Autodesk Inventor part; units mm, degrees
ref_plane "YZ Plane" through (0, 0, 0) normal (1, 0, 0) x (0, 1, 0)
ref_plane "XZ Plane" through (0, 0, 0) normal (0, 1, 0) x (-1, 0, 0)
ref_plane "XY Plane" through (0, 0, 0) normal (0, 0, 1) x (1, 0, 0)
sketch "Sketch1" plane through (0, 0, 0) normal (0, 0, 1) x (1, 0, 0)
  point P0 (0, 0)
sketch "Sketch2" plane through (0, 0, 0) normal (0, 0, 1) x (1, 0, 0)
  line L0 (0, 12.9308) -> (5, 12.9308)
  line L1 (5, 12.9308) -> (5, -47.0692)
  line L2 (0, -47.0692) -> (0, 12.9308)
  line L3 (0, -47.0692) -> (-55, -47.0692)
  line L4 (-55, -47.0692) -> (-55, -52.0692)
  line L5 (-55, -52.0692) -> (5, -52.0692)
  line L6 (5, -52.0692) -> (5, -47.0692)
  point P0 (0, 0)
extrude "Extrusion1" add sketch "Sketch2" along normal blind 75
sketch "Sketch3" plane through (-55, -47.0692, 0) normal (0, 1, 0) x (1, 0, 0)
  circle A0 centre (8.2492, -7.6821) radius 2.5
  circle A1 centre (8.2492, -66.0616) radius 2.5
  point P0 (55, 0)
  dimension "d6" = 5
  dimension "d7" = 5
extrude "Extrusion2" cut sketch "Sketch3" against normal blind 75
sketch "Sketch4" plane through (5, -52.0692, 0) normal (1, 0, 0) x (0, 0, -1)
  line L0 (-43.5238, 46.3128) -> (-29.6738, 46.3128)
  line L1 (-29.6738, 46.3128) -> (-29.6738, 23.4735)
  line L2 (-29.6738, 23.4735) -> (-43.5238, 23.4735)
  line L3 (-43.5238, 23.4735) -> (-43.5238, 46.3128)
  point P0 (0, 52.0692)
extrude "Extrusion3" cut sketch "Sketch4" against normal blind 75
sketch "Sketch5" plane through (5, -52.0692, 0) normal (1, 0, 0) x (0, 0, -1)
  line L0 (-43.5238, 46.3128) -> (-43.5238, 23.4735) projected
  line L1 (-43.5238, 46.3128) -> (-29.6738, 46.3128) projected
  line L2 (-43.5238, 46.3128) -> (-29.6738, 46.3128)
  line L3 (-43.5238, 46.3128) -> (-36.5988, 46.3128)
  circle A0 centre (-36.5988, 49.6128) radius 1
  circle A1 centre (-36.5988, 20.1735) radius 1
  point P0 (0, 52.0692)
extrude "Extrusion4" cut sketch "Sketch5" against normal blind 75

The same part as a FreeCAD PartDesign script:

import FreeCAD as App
import Part
import Sketcher


def add_polygon(sketch, points):
    """Adds a closed chain of lines whose ends are joined by coincident constraints."""
    first, n = sketch.GeometryCount, len(points)
    for a, b in zip(points, points[1:] + points[:1]):
        sketch.addGeometry(Part.LineSegment(App.Vector(*a, 0), App.Vector(*b, 0)), False)
    for i in range(n):
        sketch.addConstraint(Sketcher.Constraint("Coincident", first + i, 2, first + (i + 1) % n, 1))

doc = App.newDocument("Part")
body = doc.addObject("PartDesign::Body", "Body")

sketch1 = body.newObject("Sketcher::SketchObject", "Sketch")
sketch1.AttachmentSupport = (doc.getObject("XY_Plane"), [""])
sketch1.MapMode = "FlatFace"
add_polygon(sketch1, [(5, 13), (0, 13), (0, -47), (-55, -47), (-55, -52), (5, -52)])
sketch1.addConstraint([
    Sketcher.Constraint("Horizontal", 0),
    Sketcher.Constraint("Vertical", 1),
    Sketcher.Constraint("Horizontal", 2),
    Sketcher.Constraint("Vertical", 3),
    Sketcher.Constraint("Horizontal", 4),
    Sketcher.Constraint("Vertical", 5),
    Sketcher.Constraint("PointOnObject", 0, 2, -2),
    Sketcher.Constraint("Equal", 4, 1),
    Sketcher.Constraint("Equal", 0, 3),
    Sketcher.Constraint("DistanceX", 0, 2, 0, 1, 5.0),
    Sketcher.Constraint("DistanceX", 2, 2, 2, 1, 55.0),
    Sketcher.Constraint("DistanceY", -1, 1, 0, 2, 12.9308),
])
pad1 = body.newObject("PartDesign::Pad", "Pad")
pad1.Profile = sketch1
pad1.Length = 75

sketch2 = body.newObject("Sketcher::SketchObject", "Sketch001")
sketch2.AttachmentSupport = (doc.getObject("XZ_Plane"), [""])
sketch2.MapMode = "FlatFace"
sketch2.AttachmentOffset = App.Placement(App.Vector(0, 0, 47.0692), App.Rotation())
sketch2.addGeometry([
    Part.Circle(App.Vector(-46.8, 7.7, 0), App.Vector(0, 0, 1), 2.5),
    Part.Circle(App.Vector(-46.8, 66.1, 0), App.Vector(0, 0, 1), 2.5),
], False)
sketch2.addConstraint([
    Sketcher.Constraint("Equal", 0, 1),
    Sketcher.Constraint("Vertical", 0, 3, 1, 3),
    Sketcher.Constraint("Diameter", 0, 5.0),
    Sketcher.Constraint("DistanceY", -1, 1, 0, 3, 7.682),
    Sketcher.Constraint("DistanceX", 0, 3, -1, 1, 46.7508),
    Sketcher.Constraint("DistanceY", -1, 1, 1, 3, 66.0616),
])
pocket1 = body.newObject("PartDesign::Pocket", "Pocket")
pocket1.Profile = sketch2
pocket1.Length = 75
pocket1.Reversed = True

sketch3 = body.newObject("Sketcher::SketchObject", "Sketch002")
sketch3.AttachmentSupport = (doc.getObject("YZ_Plane"), [""])
sketch3.MapMode = "FlatFace"
sketch3.AttachmentOffset = App.Placement(App.Vector(0, 0, 5), App.Rotation())
add_polygon(sketch3, [(-6, 30), (-6, 44), (-29, 44), (-29, 30)])
sketch3.addConstraint([
    Sketcher.Constraint("Vertical", 0),
    Sketcher.Constraint("Horizontal", 1),
    Sketcher.Constraint("Vertical", 2),
    Sketcher.Constraint("Horizontal", 3),
    Sketcher.Constraint("DistanceY", 0, 1, 0, 2, 13.85),
    Sketcher.Constraint("DistanceX", 1, 2, 1, 1, 22.8393),
    Sketcher.Constraint("DistanceX", 0, 2, -1, 1, 5.7564),
    Sketcher.Constraint("DistanceY", -1, 1, 0, 2, 43.5238),
])
pocket2 = body.newObject("PartDesign::Pocket", "Pocket001")
pocket2.Profile = sketch3
pocket2.Length = 75

sketch4 = body.newObject("Sketcher::SketchObject", "Sketch003")
sketch4.AttachmentSupport = (doc.getObject("YZ_Plane"), [""])
sketch4.MapMode = "FlatFace"
sketch4.AttachmentOffset = App.Placement(App.Vector(0, 0, 5), App.Rotation())
sketch4.addGeometry([
    Part.Circle(App.Vector(-2.5, 36.6, 0), App.Vector(0, 0, 1), 1),
    Part.Circle(App.Vector(-31.9, 36.6, 0), App.Vector(0, 0, 1), 1),
], False)
sketch4.addConstraint([
    Sketcher.Constraint("Equal", 0, 1),
    Sketcher.Constraint("Horizontal", 0, 3, 1, 3),
    Sketcher.Constraint("Diameter", 0, 2.0),
    Sketcher.Constraint("DistanceX", 0, 3, -1, 1, 2.4564),
    Sketcher.Constraint("DistanceY", -1, 1, 0, 3, 36.5988),
    Sketcher.Constraint("DistanceX", 1, 3, -1, 1, 31.8957),
])
pocket3 = body.newObject("PartDesign::Pocket", "Pocket002")
pocket3.Profile = sketch4
pocket3.Length = 75

doc.recompute()
